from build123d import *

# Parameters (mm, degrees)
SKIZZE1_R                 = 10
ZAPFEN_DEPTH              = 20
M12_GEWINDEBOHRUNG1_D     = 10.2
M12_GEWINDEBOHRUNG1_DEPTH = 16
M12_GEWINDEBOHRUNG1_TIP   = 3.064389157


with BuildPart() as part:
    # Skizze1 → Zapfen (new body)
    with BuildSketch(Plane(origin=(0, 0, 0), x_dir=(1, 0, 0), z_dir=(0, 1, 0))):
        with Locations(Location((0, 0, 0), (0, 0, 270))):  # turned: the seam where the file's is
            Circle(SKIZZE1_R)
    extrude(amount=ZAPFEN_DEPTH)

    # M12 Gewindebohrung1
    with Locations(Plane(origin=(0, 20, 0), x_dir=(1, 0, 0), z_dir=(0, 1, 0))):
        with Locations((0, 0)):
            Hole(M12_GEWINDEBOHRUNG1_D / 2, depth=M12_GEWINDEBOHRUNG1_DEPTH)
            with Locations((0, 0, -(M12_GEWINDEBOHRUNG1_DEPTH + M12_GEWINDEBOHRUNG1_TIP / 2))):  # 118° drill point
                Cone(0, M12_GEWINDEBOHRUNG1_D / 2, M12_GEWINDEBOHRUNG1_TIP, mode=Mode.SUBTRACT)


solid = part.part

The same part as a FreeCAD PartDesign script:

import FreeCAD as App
import Part
import Sketcher

doc = App.newDocument("Part")
body = doc.addObject("PartDesign::Body", "Body")

sketch1 = doc.addObject("Sketcher::SketchObject", "Sketch")
body.addObject(sketch1)
sketch1.AttachmentSupport = (doc.XZ_Plane, [""])
sketch1.MapMode = "FlatFace"
sketch1.addGeometry(Part.Circle(App.Vector(0, 0, 0), App.Vector(0, 0, 1), 10), False)
sketch1.addConstraint(Sketcher.Constraint("Coincident", 0, 3, -1, 1))
sketch1.addConstraint(Sketcher.Constraint("Diameter", 0, 20.0))
pad1 = doc.addObject("PartDesign::Pad", "Pad")
body.addObject(pad1)
pad1.Profile = sketch1
pad1.Length = 20
pad1.Reversed = True

sketch2 = doc.addObject("Sketcher::SketchObject", "Sketch001")
body.addObject(sketch2)
sketch2.AttachmentSupport = (doc.XZ_Plane, [""])
sketch2.MapMode = "FlatFace"
sketch2.AttachmentOffset = App.Placement(App.Vector(0, 0, -20), App.Rotation())
sketch2.addGeometry(Part.Circle(App.Vector(0, 0, 0), App.Vector(0, 0, 1), 5), False)
sketch2.addConstraint(Sketcher.Constraint("Coincident", 0, 3, -1, 1))
sketch2.addConstraint(Sketcher.Constraint("Diameter", 0, 10.2))
doc.recompute()
hole = doc.addObject("PartDesign::Hole", "Hole")
body.addObject(hole)
hole.Profile = sketch2
hole.ThreadType = "None"
hole.Diameter = 10.2
hole.DepthType = "Dimension"
hole.Depth = 16
hole.DrillPoint = "Angled"
hole.DrillPointAngle = 118
hole.Reversed = True

doc.recompute()
